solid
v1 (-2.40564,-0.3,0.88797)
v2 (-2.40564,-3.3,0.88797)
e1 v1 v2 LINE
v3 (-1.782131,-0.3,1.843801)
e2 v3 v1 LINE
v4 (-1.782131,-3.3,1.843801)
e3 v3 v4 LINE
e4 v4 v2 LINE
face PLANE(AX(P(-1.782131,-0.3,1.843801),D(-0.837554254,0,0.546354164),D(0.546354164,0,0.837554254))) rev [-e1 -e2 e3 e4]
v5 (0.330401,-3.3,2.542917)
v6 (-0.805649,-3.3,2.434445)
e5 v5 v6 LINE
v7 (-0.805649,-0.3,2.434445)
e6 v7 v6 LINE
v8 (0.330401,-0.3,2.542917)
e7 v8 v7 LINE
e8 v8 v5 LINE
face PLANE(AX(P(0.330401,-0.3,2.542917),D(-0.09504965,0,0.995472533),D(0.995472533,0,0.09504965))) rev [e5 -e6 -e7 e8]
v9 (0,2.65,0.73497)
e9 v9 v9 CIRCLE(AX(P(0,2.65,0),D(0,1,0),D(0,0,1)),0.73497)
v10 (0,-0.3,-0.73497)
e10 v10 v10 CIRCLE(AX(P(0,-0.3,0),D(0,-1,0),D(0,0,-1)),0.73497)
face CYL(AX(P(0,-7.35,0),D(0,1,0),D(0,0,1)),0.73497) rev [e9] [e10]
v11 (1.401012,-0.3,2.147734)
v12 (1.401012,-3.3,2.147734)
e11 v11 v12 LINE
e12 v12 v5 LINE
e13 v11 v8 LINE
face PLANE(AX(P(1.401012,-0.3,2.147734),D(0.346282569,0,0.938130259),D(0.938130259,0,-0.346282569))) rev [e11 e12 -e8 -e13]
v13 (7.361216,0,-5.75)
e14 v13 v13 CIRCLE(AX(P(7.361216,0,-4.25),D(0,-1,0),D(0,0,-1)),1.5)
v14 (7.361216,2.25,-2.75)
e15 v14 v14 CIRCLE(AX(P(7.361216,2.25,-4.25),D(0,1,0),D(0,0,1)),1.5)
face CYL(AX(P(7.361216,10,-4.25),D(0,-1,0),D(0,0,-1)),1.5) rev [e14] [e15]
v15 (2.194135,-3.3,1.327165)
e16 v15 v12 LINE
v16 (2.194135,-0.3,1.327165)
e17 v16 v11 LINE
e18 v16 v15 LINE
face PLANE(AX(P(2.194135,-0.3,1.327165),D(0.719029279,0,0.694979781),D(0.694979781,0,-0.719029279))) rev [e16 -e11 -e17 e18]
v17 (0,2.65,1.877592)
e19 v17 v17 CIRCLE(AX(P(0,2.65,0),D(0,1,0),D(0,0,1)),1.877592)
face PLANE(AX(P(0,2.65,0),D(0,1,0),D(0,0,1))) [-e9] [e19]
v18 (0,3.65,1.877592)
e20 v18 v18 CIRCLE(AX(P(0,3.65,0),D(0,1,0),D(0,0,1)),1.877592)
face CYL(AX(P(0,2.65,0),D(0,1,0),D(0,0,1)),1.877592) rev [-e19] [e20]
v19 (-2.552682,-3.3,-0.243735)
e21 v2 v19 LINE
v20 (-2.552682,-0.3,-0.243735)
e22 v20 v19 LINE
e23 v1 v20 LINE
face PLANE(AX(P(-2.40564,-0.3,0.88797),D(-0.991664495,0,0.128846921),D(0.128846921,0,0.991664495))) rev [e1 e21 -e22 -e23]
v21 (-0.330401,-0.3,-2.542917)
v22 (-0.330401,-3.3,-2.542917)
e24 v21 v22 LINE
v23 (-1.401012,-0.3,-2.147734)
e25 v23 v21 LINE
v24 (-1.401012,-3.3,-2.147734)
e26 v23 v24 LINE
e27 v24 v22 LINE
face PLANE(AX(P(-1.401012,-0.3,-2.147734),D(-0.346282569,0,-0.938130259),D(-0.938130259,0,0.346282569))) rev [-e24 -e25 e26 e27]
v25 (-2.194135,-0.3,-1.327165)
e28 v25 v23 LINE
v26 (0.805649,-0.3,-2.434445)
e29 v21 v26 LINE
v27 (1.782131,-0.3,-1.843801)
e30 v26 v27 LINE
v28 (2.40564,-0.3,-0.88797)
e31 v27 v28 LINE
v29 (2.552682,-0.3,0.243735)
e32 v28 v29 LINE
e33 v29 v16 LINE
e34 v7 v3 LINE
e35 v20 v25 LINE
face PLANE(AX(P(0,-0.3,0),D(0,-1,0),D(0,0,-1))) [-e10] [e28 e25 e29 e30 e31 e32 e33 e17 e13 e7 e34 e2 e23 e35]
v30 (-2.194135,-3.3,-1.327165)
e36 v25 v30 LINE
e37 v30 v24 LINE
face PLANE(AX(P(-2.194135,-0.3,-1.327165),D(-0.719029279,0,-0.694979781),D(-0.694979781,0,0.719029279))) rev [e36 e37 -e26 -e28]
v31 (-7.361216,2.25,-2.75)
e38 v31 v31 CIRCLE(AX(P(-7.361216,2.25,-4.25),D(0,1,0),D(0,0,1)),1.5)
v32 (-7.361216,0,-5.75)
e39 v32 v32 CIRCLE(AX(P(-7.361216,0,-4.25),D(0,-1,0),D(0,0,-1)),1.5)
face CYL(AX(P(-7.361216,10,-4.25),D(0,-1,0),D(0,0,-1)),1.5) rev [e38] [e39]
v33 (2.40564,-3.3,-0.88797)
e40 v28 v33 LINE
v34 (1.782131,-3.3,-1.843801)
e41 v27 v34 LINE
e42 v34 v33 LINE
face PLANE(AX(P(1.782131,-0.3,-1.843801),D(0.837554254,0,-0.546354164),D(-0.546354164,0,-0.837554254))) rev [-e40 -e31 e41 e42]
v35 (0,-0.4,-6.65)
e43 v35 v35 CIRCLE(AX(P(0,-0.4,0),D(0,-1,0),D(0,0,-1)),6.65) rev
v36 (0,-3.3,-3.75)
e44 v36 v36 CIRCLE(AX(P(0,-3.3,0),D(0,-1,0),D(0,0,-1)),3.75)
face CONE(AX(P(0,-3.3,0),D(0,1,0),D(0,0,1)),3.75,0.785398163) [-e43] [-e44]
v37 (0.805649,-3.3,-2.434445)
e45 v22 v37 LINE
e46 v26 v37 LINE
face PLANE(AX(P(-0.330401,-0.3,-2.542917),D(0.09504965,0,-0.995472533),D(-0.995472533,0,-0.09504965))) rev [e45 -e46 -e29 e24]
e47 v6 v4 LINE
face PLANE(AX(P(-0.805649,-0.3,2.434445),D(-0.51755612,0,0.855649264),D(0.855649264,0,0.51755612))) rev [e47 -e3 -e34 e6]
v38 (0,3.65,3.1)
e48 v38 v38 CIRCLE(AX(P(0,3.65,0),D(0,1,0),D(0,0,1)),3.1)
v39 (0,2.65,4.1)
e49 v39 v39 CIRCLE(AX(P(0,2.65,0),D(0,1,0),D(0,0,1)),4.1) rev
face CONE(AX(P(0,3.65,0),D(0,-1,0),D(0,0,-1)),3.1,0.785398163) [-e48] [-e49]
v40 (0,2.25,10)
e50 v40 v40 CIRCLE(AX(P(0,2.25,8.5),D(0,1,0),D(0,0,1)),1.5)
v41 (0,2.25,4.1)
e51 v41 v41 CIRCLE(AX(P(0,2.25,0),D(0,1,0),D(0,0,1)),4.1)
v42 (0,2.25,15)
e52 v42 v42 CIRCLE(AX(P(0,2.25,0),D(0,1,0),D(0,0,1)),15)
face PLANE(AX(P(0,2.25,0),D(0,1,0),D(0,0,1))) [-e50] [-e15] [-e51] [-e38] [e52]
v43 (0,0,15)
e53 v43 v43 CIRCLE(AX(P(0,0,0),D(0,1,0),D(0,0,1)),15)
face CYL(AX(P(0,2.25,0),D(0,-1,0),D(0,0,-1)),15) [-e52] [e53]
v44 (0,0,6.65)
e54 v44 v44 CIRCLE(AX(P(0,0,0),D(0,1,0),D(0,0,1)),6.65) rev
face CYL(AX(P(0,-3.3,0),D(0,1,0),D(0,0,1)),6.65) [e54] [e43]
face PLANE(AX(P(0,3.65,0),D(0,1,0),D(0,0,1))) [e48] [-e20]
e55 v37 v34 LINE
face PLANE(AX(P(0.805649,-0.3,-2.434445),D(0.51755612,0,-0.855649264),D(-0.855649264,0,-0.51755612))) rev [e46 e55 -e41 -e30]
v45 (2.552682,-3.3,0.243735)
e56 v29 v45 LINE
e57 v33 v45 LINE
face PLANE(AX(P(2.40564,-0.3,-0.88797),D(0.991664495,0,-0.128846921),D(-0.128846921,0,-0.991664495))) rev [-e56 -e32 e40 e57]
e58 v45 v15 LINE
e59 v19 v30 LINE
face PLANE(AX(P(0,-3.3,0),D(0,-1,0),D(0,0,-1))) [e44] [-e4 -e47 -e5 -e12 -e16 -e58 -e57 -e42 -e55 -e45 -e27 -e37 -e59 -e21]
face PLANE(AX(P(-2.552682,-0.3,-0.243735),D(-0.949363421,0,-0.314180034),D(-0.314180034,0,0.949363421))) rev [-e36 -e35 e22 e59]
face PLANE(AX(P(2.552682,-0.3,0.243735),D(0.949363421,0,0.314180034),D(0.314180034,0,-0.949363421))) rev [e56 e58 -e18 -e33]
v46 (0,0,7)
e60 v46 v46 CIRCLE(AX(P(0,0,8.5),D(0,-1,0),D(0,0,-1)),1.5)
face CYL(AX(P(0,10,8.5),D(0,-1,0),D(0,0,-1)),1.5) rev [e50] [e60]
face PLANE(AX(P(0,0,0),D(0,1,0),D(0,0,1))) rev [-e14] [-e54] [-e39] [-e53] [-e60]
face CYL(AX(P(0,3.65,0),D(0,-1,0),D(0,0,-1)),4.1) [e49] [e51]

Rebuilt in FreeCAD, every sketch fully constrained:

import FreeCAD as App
import Part
import Sketcher

V = App.Vector


def edges_at(feature, points):
    """Names of the edges that pass closest to the given points."""
    edges = feature.Shape.Edges
    near = lambda p: min(range(len(edges)), key=lambda i: edges[i].distToShape(Part.Vertex(*p))[0])
    return sorted({f"Edge{near(p) + 1}" for p in points})

doc = App.newDocument("Part")
body = doc.addObject("PartDesign::Body", "Body")

sketch1 = doc.addObject("Sketcher::SketchObject", "Sketch")
body.addObject(sketch1)
sketch1.AttachmentSupport = (doc.XZ_Plane, [""])
sketch1.MapMode = "FlatFace"
sketch1.addGeometry(Part.Circle(V(0, 0, 0), V(0, 0, 1), 15), False)
sketch1.addConstraint([
    Sketcher.Constraint("Coincident", 0, 3, -1, 1),
    Sketcher.Constraint("Diameter", 0, 30.0),
])
pad1 = doc.addObject("PartDesign::Pad", "Pad")
body.addObject(pad1)
pad1.Profile = sketch1
pad1.Length = 2.25
pad1.Reversed = True

sketch2 = doc.addObject("Sketcher::SketchObject", "Sketch001")
body.addObject(sketch2)
sketch2.AttachmentSupport = (doc.XZ_Plane, [""])
sketch2.MapMode = "FlatFace"
sketch2.AttachmentOffset = App.Placement(V(0, 0, -2.25), App.Rotation())
sketch2.addGeometry(Part.Circle(V(0, 0, 0), V(0, 0, 1), 4.1), False)
sketch2.addConstraint([
    Sketcher.Constraint("Coincident", 0, 3, -1, 1),
    Sketcher.Constraint("Diameter", 0, 8.2),
])
pad2 = doc.addObject("PartDesign::Pad", "Pad001")
body.addObject(pad2)
pad2.Profile = sketch2
pad2.Length = 1.4
pad2.Reversed = True
doc.recompute()

chamfer = doc.addObject("PartDesign::Chamfer", "Chamfer")
body.addObject(chamfer)
chamfer.Base = (pad2, edges_at(pad2, [(0, 3.65, -4.1)]))
chamfer.Size = 1

sketch3 = doc.addObject("Sketcher::SketchObject", "Sketch002")
body.addObject(sketch3)
sketch3.AttachmentSupport = (doc.XZ_Plane, [""])
sketch3.MapMode = "FlatFace"
sketch3.addGeometry(Part.Circle(V(0, 0, 0), V(0, 0, 1), 7), False)
sketch3.addConstraint([
    Sketcher.Constraint("Coincident", 0, 3, -1, 1),
    Sketcher.Constraint("Diameter", 0, 13.3),
])
pad3 = doc.addObject("PartDesign::Pad", "Pad002")
body.addObject(pad3)
pad3.Profile = sketch3
pad3.Length = 3.3
doc.recompute()

chamfer2 = doc.addObject("PartDesign::Chamfer", "Chamfer001")
body.addObject(chamfer2)
chamfer2.Base = (pad3, edges_at(pad3, [(0, -3.3, -6.65)]))
chamfer2.Size = 2.9

sketch4 = doc.addObject("Sketcher::SketchObject", "Sketch003")
body.addObject(sketch4)
sketch4.AttachmentSupport = (doc.XZ_Plane, [""])
sketch4.MapMode = "FlatFace"
sketch4.AttachmentOffset = App.Placement(V(0, 0, 3.3), App.Rotation())
sketch4.addGeometry([
    Part.LineSegment(V(-0.805649, 2.434445, 0), V(-1.782131, 1.843801, 0)),
    Part.LineSegment(V(-1.782131, 1.843801, 0), V(-2.40564, 0.88797, 0)),
    Part.LineSegment(V(-2.40564, 0.88797, 0), V(-2.552682, -0.243735, 0)),
    Part.LineSegment(V(-2.552682, -0.243735, 0), V(-2.194135, -1.327165, 0)),
    Part.LineSegment(V(-2.194135, -1.327165, 0), V(-1.401012, -2.147734, 0)),
    Part.LineSegment(V(-1.401012, -2.147734, 0), V(-0.330401, -2.542917, 0)),
    Part.LineSegment(V(-0.330401, -2.542917, 0), V(0.805649, -2.434445, 0)),
    Part.LineSegment(V(0.805649, -2.434445, 0), V(1.782131, -1.843801, 0)),
    Part.LineSegment(V(1.782131, -1.843801, 0), V(2.40564, -0.88797, 0)),
    Part.LineSegment(V(2.40564, -0.88797, 0), V(2.552682, 0.243735, 0)),
    Part.LineSegment(V(2.552682, 0.243735, 0), V(2.194135, 1.327165, 0)),
    Part.LineSegment(V(2.194135, 1.327165, 0), V(1.401012, 2.147734, 0)),
    Part.LineSegment(V(1.401012, 2.147734, 0), V(0.330401, 2.542917, 0)),
    Part.LineSegment(V(0.330401, 2.542917, 0), V(-0.805649, 2.434445, 0)),
], False)
sketch4.addConstraint([
    Sketcher.Constraint("Coincident", 0, 2, 1, 1),
    Sketcher.Constraint("Coincident", 1, 2, 2, 1),
    Sketcher.Constraint("Coincident", 2, 2, 3, 1),
    Sketcher.Constraint("Coincident", 3, 2, 4, 1),
    Sketcher.Constraint("Coincident", 4, 2, 5, 1),
    Sketcher.Constraint("Coincident", 5, 2, 6, 1),
    Sketcher.Constraint("Coincident", 6, 2, 7, 1),
    Sketcher.Constraint("Coincident", 7, 2, 8, 1),
    Sketcher.Constraint("Coincident", 8, 2, 9, 1),
    Sketcher.Constraint("Coincident", 9, 2, 10, 1),
    Sketcher.Constraint("Coincident", 10, 2, 11, 1),
    Sketcher.Constraint("Coincident", 11, 2, 12, 1),
    Sketcher.Constraint("Coincident", 12, 2, 13, 1),
    Sketcher.Constraint("Coincident", 13, 2, 0, 1),
    Sketcher.Constraint("DistanceY", 4, 2, 2, 2, 1.903999),
    Sketcher.Constraint("DistanceY", 9, 2, 11, 2, 1.903999),
    Sketcher.Constraint("DistanceY", -1, 1, 0, 2, 1.843801),
    Sketcher.Constraint("DistanceX", 5, 2, -1, 1, 0.330401),
    Sketcher.Constraint("DistanceY", 7, 2, -1, 1, 1.843801),
    Sketcher.Constraint("DistanceX", -1, 1, 12, 2, 0.330401),
    Sketcher.Constraint("DistanceX", 0, 2, -1, 1, 1.782131),
    Sketcher.Constraint("DistanceX", 1, 2, -1, 1, 2.40564),
    Sketcher.Constraint("DistanceY", -1, 1, 1, 2, 0.88797),
    Sketcher.Constraint("DistanceX", 4, 2, -1, 1, 1.401012),
    Sketcher.Constraint("DistanceX", -1, 1, 6, 2, 0.805649),
    Sketcher.Constraint("DistanceX", -1, 1, 7, 2, 1.782131),
    Sketcher.Constraint("DistanceX", -1, 1, 8, 2, 2.40564),
    Sketcher.Constraint("DistanceY", 8, 2, -1, 1, 0.88797),
    Sketcher.Constraint("DistanceX", -1, 1, 11, 2, 1.401012),
    Sketcher.Constraint("DistanceX", 13, 2, -1, 1, 0.805649),
    Sketcher.Constraint("DistanceX", 2, 2, 0, 2, 0.770551),
    Sketcher.Constraint("DistanceY", 3, 2, 2, 2, 1.08343),
    Sketcher.Constraint("DistanceY", 5, 2, 0, 2, 4.386719),
    Sketcher.Constraint("DistanceY", 6, 2, 4, 2, 0.286711),
    Sketcher.Constraint("DistanceX", 7, 2, 9, 2, 0.770551),
    Sketcher.Constraint("DistanceY", 6, 2, 9, 2, 2.67818),
    Sketcher.Constraint("DistanceY", 9, 2, 10, 2, 1.08343),
    Sketcher.Constraint("DistanceY", 11, 2, 13, 2, 0.286711),
    Sketcher.Constraint("Distance", 0, 1.141217),
    Sketcher.Constraint("Distance", 3, 1.141217),
    Sketcher.Constraint("Distance", 10, 1.141217),
    Sketcher.Constraint("Distance", 12, 1.141217),
])
pocket1 = doc.addObject("PartDesign::Pocket", "Pocket")
body.addObject(pocket1)
pocket1.Profile = sketch4
pocket1.Length = 3

sketch5 = doc.addObject("Sketcher::SketchObject", "Sketch004")
body.addObject(sketch5)
sketch5.AttachmentSupport = (doc.XZ_Plane, [""])
sketch5.MapMode = "FlatFace"
sketch5.AttachmentOffset = App.Placement(V(0, 0, -3.65), App.Rotation())
sketch5.addGeometry(Part.Circle(V(0, 0, 0), V(0, 0, 1), 1.9), False)
sketch5.addConstraint([
    Sketcher.Constraint("Coincident", 0, 3, -1, 1),
    Sketcher.Constraint("Diameter", 0, 3.755183),
])
pocket2 = doc.addObject("PartDesign::Pocket", "Pocket001")
body.addObject(pocket2)
pocket2.Profile = sketch5
pocket2.Length = 1
pocket2.Reversed = True

sketch6 = doc.addObject("Sketcher::SketchObject", "Sketch005")
body.addObject(sketch6)
sketch6.AttachmentSupport = (doc.XZ_Plane, [""])
sketch6.MapMode = "FlatFace"
sketch6.AttachmentOffset = App.Placement(V(0, 0, -2.65), App.Rotation())
sketch6.addGeometry(Part.Circle(V(0, 0, 0), V(0, 0, 1), 0.7), False)
sketch6.addConstraint([
    Sketcher.Constraint("Coincident", 0, 3, -1, 1),
    Sketcher.Constraint("Diameter", 0, 1.469941),
])
pocket3 = doc.addObject("PartDesign::Pocket", "Pocket002")
body.addObject(pocket3)
pocket3.Profile = sketch6
pocket3.Length = 10
pocket3.Reversed = True

sketch7 = doc.addObject("Sketcher::SketchObject", "Sketch006")
body.addObject(sketch7)
sketch7.AttachmentSupport = (doc.XZ_Plane, [""])
sketch7.MapMode = "FlatFace"
sketch7.addGeometry([
    Part.Circle(V(-7.4, -4.2, 0), V(0, 0, 1), 1.5),
    Part.Circle(V(7.4, -4.2, 0), V(0, 0, 1), 1.5),
    Part.Circle(V(0, 8.5, 0), V(0, 0, 1), 1.5),
], False)
sketch7.addConstraint([
    Sketcher.Constraint("Equal", 0, 1),
    Sketcher.Constraint("Equal", 1, 2),
    Sketcher.Constraint("Symmetric", 0, 3, 1, 3, -2),
    Sketcher.Constraint("PointOnObject", 2, 3, -2),
    Sketcher.Constraint("Diameter", 0, 3.0),
    Sketcher.Constraint("DistanceY", -1, 1, 2, 3, 8.5),
    Sketcher.Constraint("DistanceY", 0, 3, -1, 1, 4.25),
    Sketcher.Constraint("DistanceX", 0, 3, 1, 3, 14.722432),
])
pocket4 = doc.addObject("PartDesign::Pocket", "Pocket003")
body.addObject(pocket4)
pocket4.Profile = sketch7
pocket4.Length = 10

doc.recompute()
